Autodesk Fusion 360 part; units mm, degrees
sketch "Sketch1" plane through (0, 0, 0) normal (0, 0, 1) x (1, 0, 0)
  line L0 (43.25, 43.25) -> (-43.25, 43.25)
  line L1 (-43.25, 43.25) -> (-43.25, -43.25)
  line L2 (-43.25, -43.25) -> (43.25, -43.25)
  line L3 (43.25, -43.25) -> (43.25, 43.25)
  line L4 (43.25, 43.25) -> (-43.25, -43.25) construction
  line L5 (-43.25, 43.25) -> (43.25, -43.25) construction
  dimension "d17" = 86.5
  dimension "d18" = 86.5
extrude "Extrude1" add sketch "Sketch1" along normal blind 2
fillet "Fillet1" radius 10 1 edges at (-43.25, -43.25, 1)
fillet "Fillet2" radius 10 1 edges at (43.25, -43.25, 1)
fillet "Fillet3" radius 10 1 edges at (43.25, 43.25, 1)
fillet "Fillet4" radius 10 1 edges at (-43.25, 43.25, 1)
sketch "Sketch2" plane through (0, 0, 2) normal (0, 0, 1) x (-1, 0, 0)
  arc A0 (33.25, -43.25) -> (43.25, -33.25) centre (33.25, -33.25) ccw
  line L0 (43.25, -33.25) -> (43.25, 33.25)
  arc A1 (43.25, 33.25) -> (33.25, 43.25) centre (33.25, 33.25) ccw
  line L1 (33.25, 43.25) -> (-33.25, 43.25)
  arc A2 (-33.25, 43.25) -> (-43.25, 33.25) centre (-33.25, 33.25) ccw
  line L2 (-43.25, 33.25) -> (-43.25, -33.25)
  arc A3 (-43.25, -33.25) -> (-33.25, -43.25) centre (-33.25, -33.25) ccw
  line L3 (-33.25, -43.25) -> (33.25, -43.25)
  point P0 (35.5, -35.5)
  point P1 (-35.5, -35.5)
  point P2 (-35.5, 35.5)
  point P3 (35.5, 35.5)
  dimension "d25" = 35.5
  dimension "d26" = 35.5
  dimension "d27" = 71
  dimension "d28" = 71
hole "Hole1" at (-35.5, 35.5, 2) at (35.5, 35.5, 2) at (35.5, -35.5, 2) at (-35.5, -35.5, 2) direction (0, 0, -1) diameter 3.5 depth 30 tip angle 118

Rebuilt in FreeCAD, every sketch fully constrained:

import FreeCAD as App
import Part
import Sketcher

V = App.Vector
Q = App.Units.Quantity


def edges_at(feature, points):
    """Names of the edges that pass closest to the given points."""
    edges = feature.Shape.Edges
    near = lambda p: min(range(len(edges)), key=lambda i: edges[i].distToShape(Part.Vertex(*p))[0])
    return sorted({f"Edge{near(p) + 1}" for p in points})


def add_polygon(sketch, points):
    """Adds a closed chain of lines whose ends are joined by coincident constraints."""
    first, n = sketch.GeometryCount, len(points)
    for a, b in zip(points, points[1:] + points[:1]):
        sketch.addGeometry(Part.LineSegment(App.Vector(*a, 0), App.Vector(*b, 0)), False)
    for i in range(n):
        sketch.addConstraint(Sketcher.Constraint("Coincident", first + i, 2, first + (i + 1) % n, 1))

doc = App.newDocument("Part")
body = doc.addObject("PartDesign::Body", "Body")

# Sketch on XY plane
sketch1 = body.newObject("Sketcher::SketchObject", "Sketch")
sketch1.AttachmentSupport = (doc.getObject("XY_Plane"), [""])
sketch1.MapMode = "FlatFace"
add_polygon(sketch1, [(43, -43), (43, 43), (-43, 43), (-43, -43)])  # lines 0-3
sketch1.addConstraint([
    Sketcher.Constraint("Vertical", 0),
    Sketcher.Constraint("Horizontal", 1),
    Sketcher.Constraint("Vertical", 2),
    Sketcher.Constraint("Horizontal", 3),
    Sketcher.Constraint("Symmetric", 0, 2, 2, 2, -1, 1),
    Sketcher.Constraint("Equal", 3, 0),
    Sketcher.Constraint("DistanceX", 1, 2, 1, 1, Q("86.5 mm")),
])
pad1 = body.newObject("PartDesign::Pad", "Pad")
pad1.Profile = sketch1
pad1.Length = 2
doc.recompute()

fillet = body.newObject("PartDesign::Fillet", "Fillet")
fillet.Base = (pad1, edges_at(pad1, [(-43.25, -43.25, 1)]))
fillet.Radius = 10
doc.recompute()

fillet2 = body.newObject("PartDesign::Fillet", "Fillet001")
fillet2.Base = (fillet, edges_at(fillet, [(43.25, -43.25, 1)]))
fillet2.Radius = 10
doc.recompute()

fillet3 = body.newObject("PartDesign::Fillet", "Fillet002")
fillet3.Base = (fillet2, edges_at(fillet2, [(43.25, 43.25, 1)]))
fillet3.Radius = 10
doc.recompute()

fillet4 = body.newObject("PartDesign::Fillet", "Fillet003")
fillet4.Base = (fillet3, edges_at(fillet3, [(-43.25, 43.25, 1)]))
fillet4.Radius = 10

# Sketch on XY plane
sketch2 = body.newObject("Sketcher::SketchObject", "Sketch001")
sketch2.AttachmentSupport = (doc.getObject("XY_Plane"), [""])
sketch2.MapMode = "FlatFace"
sketch2.AttachmentOffset = App.Placement(V(0, 0, 2), App.Rotation())
sketch2.addGeometry([
    Part.Circle(V(-35.5, 35.5, 0), V(0, 0, 1), 1.8),
    Part.Circle(V(35.5, 35.5, 0), V(0, 0, 1), 1.8),
    Part.Circle(V(35.5, -35.5, 0), V(0, 0, 1), 1.8),
    Part.Circle(V(-35.5, -35.5, 0), V(0, 0, 1), 1.8),
], False)
sketch2.addConstraint([
    Sketcher.Constraint("Equal", 0, 1),
    Sketcher.Constraint("Equal", 1, 2),
    Sketcher.Constraint("Equal", 2, 3),
    Sketcher.Constraint("Symmetric", 0, 3, 2, 3, -1, 1),
    Sketcher.Constraint("Symmetric", 1, 3, 3, 3, -1, 1),
    Sketcher.Constraint("Symmetric", 0, 3, 1, 3, -2),
    Sketcher.Constraint("Diameter", 0, Q("3.5 mm")),
    Sketcher.Constraint("DistanceX", 0, 3, 1, 3, Q("71 mm")),
    Sketcher.Constraint("DistanceY", 2, 3, 1, 3, Q("71 mm")),
])
doc.recompute()
hole = body.newObject("PartDesign::Hole", "Hole")
hole.Profile = sketch2
hole.ThreadType = "None"
hole.Diameter = 3.5
hole.DepthType = "Dimension"
hole.Depth = 30
hole.DrillPoint = "Angled"
hole.DrillPointAngle = 118

doc.recompute()
